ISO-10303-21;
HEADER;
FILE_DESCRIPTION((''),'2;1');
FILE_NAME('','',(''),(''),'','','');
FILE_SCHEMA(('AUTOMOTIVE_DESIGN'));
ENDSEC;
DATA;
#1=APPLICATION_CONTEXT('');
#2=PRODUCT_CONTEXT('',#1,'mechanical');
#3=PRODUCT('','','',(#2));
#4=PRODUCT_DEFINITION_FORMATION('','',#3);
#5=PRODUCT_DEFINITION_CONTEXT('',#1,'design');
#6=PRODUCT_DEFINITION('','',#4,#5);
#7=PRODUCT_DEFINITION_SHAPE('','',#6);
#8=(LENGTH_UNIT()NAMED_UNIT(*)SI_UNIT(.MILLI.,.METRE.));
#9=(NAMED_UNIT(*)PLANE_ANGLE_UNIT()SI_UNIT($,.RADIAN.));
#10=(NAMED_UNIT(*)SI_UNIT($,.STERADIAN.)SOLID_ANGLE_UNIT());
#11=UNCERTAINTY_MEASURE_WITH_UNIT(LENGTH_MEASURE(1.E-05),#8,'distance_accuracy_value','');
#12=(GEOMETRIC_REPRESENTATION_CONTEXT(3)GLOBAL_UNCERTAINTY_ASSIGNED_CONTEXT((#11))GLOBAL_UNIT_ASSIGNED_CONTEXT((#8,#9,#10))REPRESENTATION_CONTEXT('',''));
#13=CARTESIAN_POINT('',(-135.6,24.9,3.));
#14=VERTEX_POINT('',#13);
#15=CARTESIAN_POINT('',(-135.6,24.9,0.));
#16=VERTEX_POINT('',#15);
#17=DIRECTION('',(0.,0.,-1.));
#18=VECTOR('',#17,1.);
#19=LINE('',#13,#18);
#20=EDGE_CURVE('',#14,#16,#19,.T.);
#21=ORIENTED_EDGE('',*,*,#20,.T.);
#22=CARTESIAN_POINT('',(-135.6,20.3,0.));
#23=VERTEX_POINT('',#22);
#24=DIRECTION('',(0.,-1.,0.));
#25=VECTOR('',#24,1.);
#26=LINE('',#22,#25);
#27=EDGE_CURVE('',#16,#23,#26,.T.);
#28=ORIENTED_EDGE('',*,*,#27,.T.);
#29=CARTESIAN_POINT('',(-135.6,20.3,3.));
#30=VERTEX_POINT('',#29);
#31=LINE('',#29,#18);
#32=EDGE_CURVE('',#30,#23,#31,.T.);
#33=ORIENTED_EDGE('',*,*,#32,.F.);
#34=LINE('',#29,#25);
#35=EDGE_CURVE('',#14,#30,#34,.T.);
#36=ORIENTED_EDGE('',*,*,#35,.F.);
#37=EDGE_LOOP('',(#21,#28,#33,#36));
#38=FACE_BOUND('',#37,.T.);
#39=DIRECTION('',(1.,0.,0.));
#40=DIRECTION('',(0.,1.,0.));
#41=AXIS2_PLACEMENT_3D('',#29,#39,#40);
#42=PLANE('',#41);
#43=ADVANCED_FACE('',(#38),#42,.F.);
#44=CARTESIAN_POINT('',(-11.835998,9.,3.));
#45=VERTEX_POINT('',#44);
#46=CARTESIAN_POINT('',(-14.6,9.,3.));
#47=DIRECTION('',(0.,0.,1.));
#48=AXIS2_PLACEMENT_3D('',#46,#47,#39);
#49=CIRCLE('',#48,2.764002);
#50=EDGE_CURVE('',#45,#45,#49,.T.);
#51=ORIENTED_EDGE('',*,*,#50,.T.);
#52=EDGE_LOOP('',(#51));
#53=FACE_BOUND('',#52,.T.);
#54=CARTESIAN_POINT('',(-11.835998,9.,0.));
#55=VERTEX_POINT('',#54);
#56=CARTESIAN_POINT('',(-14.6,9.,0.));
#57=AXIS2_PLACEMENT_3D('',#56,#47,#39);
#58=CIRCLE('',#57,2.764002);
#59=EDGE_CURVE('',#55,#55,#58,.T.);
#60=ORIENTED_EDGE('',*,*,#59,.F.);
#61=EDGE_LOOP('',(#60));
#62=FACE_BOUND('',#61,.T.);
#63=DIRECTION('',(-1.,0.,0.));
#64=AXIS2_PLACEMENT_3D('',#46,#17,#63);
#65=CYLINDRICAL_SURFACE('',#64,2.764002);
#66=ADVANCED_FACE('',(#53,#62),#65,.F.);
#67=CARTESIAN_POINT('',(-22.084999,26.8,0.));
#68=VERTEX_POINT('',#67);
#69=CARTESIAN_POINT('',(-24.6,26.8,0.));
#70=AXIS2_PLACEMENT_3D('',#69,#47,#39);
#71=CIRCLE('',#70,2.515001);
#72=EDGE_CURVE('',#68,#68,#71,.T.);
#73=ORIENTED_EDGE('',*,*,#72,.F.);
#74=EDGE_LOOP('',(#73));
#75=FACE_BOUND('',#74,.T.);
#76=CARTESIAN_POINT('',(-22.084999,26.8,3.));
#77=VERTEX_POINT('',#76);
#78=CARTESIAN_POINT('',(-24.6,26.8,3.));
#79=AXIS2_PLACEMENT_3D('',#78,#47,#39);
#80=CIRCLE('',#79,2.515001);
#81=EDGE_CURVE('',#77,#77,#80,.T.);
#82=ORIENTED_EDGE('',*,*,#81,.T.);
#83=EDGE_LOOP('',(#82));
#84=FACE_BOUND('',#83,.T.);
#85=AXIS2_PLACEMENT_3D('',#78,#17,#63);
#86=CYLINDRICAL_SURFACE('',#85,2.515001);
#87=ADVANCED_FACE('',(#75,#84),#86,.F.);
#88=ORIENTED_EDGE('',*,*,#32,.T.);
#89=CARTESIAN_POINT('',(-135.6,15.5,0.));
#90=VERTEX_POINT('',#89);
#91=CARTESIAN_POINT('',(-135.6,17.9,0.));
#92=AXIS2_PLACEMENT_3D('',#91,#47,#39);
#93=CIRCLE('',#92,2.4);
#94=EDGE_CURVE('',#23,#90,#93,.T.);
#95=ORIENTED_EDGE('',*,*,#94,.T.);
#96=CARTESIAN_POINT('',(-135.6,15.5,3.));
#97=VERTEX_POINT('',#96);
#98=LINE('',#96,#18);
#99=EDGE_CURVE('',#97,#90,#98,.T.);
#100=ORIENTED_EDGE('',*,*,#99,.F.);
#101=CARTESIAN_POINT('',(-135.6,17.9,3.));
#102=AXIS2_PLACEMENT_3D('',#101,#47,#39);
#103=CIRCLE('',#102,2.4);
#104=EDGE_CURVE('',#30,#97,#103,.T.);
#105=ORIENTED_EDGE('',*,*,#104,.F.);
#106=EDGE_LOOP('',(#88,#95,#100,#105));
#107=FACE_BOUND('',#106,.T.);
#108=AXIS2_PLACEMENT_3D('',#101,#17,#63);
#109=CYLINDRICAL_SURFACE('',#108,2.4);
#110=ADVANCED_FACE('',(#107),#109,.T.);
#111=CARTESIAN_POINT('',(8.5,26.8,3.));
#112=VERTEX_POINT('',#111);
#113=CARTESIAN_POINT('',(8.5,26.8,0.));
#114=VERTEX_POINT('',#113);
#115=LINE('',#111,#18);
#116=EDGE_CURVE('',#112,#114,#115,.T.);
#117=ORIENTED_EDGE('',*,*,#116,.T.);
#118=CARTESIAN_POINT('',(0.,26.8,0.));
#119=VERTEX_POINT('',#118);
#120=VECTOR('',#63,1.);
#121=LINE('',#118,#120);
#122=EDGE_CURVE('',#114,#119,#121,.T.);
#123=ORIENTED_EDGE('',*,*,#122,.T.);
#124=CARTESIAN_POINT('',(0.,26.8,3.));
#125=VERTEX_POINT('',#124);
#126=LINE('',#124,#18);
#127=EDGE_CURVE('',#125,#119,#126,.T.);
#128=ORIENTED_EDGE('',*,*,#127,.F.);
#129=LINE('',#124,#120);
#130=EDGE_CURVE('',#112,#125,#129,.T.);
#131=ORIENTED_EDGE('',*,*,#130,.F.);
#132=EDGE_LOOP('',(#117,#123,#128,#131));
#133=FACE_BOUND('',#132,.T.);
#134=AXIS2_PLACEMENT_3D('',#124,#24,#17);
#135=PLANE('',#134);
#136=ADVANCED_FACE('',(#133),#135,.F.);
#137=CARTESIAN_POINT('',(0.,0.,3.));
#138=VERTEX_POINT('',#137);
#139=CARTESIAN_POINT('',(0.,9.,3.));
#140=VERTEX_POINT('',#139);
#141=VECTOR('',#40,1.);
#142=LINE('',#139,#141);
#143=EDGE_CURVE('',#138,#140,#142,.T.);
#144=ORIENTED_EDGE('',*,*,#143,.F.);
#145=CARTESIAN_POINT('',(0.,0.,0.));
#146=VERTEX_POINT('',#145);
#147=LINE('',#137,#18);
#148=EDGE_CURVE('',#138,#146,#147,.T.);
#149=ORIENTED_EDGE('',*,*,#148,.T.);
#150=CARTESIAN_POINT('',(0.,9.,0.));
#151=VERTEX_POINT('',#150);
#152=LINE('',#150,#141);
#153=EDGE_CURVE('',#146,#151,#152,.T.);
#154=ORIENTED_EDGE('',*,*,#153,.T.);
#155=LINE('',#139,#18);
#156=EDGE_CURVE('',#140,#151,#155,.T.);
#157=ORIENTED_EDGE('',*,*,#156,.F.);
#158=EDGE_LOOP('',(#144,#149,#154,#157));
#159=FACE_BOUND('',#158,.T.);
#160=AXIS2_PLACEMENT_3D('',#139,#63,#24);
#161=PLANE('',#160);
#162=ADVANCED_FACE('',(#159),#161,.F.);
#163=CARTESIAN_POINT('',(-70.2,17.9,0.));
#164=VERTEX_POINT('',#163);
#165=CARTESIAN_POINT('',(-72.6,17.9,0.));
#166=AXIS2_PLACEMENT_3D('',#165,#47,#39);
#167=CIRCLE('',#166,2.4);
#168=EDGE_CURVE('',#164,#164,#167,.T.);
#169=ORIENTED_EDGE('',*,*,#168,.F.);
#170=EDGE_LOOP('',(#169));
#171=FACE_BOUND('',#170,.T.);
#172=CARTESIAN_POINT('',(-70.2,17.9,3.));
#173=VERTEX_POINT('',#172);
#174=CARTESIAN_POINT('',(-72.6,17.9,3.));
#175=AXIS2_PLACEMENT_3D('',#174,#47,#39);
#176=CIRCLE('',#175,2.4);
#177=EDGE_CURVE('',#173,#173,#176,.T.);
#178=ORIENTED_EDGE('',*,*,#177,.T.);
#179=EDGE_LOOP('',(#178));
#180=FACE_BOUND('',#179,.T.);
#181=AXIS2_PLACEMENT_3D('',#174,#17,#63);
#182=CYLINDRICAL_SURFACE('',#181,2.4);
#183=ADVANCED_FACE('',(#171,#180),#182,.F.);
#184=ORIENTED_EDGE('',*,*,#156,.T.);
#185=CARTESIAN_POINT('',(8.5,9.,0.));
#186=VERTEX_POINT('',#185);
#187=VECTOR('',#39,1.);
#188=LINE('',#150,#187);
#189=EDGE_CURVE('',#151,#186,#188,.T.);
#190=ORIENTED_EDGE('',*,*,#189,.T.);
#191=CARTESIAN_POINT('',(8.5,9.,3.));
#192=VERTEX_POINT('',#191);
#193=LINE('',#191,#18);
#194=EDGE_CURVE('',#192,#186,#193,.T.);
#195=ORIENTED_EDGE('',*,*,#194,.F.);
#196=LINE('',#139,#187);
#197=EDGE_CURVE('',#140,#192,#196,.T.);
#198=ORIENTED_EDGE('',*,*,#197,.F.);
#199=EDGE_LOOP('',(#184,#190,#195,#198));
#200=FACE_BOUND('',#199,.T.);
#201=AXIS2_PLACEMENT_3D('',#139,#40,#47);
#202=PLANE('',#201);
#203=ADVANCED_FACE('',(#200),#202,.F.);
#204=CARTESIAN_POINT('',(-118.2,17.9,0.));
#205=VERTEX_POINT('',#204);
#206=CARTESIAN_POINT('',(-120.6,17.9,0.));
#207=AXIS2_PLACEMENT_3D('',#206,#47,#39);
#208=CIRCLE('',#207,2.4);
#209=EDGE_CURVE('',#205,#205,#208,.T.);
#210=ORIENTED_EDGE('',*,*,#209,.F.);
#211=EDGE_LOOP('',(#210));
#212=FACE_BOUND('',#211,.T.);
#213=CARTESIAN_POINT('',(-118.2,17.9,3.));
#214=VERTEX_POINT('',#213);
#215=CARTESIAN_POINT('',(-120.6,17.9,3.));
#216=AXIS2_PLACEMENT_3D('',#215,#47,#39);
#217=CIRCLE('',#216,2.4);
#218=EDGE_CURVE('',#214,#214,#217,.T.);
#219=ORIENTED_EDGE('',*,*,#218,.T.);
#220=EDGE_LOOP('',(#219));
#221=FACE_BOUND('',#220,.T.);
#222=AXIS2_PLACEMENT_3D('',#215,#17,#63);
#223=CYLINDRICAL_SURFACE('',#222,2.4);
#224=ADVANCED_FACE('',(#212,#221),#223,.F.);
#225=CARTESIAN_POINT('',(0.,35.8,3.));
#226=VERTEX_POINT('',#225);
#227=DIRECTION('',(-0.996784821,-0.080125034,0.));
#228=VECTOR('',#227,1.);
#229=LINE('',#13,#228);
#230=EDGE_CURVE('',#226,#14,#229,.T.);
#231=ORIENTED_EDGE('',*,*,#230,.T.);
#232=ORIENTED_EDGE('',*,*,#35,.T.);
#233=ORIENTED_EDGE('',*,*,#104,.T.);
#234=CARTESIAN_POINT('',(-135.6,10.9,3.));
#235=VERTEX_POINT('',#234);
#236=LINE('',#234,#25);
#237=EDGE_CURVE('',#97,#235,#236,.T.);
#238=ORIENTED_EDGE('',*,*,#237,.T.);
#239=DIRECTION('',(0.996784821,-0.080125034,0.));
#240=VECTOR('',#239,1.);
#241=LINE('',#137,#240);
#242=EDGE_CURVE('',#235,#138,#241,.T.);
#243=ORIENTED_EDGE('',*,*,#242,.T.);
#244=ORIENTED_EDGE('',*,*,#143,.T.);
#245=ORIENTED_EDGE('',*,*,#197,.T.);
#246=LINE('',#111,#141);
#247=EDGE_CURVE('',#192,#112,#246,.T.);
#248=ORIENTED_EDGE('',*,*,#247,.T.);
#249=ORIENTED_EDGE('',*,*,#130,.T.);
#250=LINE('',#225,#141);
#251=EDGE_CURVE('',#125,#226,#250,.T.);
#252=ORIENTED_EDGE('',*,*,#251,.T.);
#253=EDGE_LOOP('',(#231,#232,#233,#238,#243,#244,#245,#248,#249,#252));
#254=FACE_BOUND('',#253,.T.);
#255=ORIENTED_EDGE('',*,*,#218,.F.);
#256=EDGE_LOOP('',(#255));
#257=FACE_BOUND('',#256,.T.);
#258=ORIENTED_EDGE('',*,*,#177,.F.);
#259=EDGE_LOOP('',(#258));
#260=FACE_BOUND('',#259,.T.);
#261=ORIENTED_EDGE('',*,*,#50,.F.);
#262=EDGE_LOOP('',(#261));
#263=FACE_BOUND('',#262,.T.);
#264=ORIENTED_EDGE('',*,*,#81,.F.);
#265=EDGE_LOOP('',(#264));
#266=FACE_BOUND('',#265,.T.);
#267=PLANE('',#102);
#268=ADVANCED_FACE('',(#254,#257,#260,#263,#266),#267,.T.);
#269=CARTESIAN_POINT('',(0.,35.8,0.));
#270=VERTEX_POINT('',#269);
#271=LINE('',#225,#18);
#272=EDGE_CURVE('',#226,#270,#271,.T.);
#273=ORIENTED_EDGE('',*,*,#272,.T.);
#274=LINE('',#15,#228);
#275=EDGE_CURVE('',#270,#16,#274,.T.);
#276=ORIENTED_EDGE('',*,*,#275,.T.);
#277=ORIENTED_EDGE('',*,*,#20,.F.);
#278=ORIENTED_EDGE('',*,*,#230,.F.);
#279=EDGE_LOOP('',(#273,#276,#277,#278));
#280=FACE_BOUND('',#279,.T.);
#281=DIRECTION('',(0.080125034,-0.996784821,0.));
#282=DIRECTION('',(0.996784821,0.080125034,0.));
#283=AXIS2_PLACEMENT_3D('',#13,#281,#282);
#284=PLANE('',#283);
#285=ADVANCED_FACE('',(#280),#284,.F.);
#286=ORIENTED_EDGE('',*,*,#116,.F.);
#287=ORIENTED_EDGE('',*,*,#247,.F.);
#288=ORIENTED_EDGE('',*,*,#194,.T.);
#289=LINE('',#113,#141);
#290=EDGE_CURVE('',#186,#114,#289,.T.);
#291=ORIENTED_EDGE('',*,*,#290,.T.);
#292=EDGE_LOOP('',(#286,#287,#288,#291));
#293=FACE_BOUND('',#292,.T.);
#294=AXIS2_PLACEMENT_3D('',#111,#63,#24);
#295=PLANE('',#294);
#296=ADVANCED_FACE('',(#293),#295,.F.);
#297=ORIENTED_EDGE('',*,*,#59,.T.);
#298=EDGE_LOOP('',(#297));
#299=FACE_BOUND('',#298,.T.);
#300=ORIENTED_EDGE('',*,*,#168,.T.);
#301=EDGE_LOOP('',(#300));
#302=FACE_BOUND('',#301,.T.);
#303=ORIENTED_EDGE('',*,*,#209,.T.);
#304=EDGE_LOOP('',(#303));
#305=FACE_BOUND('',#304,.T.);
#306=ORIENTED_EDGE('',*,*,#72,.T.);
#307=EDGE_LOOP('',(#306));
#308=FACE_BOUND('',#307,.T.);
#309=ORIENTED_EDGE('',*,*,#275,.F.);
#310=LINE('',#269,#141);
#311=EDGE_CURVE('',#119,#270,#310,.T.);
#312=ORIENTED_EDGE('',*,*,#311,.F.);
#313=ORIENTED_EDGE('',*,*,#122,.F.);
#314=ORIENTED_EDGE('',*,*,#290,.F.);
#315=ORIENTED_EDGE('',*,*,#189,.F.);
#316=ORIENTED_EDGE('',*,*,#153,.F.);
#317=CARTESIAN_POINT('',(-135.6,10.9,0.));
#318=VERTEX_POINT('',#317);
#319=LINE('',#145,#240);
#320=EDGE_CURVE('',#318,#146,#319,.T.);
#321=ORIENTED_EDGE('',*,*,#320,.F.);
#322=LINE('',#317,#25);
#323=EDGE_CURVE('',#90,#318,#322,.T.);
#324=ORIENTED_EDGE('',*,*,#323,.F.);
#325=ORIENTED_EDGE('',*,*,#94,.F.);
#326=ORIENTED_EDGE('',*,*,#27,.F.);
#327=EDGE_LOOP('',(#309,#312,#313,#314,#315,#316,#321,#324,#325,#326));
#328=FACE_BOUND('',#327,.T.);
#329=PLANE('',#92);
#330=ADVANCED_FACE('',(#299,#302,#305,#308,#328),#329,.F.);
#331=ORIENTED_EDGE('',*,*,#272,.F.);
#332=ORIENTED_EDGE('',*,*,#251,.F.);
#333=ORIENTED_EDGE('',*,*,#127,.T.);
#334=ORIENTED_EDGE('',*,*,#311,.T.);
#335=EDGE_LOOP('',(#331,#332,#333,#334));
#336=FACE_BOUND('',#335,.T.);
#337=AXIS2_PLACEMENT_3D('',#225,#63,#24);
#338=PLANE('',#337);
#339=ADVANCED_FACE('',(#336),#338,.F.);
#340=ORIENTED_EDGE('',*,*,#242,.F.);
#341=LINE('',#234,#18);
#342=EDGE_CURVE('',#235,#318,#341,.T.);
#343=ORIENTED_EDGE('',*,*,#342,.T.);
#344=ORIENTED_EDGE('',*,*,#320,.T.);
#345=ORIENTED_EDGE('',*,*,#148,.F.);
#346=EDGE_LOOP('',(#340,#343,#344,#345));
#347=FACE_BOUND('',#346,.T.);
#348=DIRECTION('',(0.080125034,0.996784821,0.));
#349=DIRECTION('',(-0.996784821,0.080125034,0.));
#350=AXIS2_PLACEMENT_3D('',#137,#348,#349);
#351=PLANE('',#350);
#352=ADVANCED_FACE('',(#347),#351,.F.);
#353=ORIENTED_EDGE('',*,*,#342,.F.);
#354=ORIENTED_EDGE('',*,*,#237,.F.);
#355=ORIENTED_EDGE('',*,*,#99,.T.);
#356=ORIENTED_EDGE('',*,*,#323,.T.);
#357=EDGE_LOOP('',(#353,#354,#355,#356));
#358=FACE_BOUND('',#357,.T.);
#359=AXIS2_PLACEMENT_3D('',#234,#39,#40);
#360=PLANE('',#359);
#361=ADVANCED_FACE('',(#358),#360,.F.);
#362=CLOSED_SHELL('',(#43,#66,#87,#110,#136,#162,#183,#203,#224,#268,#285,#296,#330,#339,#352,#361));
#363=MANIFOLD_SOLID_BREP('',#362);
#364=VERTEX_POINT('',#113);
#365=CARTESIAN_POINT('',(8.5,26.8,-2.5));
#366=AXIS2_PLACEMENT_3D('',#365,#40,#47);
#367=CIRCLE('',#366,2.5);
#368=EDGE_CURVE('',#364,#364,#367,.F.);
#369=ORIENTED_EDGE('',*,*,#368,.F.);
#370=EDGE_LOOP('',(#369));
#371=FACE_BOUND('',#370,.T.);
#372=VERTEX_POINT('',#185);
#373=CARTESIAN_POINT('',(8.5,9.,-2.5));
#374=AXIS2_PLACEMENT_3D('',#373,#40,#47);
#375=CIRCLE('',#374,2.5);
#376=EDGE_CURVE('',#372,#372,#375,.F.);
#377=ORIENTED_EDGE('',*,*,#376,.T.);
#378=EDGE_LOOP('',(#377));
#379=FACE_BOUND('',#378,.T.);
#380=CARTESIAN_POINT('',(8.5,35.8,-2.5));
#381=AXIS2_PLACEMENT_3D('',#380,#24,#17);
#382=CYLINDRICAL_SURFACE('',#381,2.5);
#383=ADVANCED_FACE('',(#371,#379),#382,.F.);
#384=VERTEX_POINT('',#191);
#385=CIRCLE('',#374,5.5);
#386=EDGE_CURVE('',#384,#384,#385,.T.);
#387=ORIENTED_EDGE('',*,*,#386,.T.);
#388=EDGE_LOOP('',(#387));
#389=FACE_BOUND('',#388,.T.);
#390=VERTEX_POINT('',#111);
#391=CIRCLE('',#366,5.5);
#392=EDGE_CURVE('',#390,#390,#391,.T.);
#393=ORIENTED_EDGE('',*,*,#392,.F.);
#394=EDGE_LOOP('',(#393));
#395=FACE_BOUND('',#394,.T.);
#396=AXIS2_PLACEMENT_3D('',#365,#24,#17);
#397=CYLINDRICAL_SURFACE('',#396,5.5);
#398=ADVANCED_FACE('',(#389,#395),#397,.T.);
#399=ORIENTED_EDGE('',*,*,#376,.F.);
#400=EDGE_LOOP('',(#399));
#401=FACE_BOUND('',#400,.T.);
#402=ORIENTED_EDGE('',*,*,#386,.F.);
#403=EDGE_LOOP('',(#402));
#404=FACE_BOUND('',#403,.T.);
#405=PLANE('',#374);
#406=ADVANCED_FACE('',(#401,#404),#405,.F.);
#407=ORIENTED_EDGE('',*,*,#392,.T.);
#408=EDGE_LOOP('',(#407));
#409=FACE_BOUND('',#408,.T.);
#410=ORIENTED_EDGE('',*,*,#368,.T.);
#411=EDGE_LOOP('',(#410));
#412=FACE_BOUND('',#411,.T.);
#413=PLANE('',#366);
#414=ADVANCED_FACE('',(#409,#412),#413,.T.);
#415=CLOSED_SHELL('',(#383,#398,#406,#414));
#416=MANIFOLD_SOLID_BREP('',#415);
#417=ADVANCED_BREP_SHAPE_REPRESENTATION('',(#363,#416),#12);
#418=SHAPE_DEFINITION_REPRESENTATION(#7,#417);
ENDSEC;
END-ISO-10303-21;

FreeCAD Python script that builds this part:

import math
import FreeCAD as App
import Part
import Sketcher

V = App.Vector
Q = App.Units.Quantity

doc = App.newDocument("Part")
params = doc.addObject("Spreadsheet::Sheet", "Params")
for row, (alias, value) in enumerate([
    ("sketch1_diameter", "4.8 mm"),
    ("sketch1_diameter2", "5.030002 mm"),
    ("sketch1_height", "9 mm"),
    ("sketch1_width", "8.5 mm"),
    ("sketch1_height2", "17.8 mm"),
    ("pad1_length", "3 mm"),
    ("sketch2_diameter", "11 mm"),
    ("pad2_length", "17.8 mm"),
    ("sketch3_diameter", "5 mm"),
], start=1):
    params.set(f"A{row}", alias)
    params.set(f"B{row}", "=" + value)
    params.setAlias(f"B{row}", alias)

body = doc.addObject("PartDesign::Body", "Body")

sketch1 = body.newObject("Sketcher::SketchObject", "Sketch")
sketch1.AttachmentSupport = (doc.getObject("XY_Plane"), [""])
sketch1.MapMode = "FlatFace"
sketch1.addGeometry([
    Part.LineSegment(V(-135.6, 10.9, 0), V(0, 0, 0)),
    Part.LineSegment(V(0, 0, 0), V(0, 9, 0)),
    Part.LineSegment(V(0, 9, 0), V(8.5, 9, 0)),
    Part.LineSegment(V(8.5, 9, 0), V(8.5, 26.8, 0)),
    Part.LineSegment(V(8.5, 26.8, 0), V(0, 26.8, 0)),
    Part.LineSegment(V(0, 26.8, 0), V(0, 35.8, 0)),
    Part.LineSegment(V(0, 35.8, 0), V(-135.6, 24.9, 0)),
    Part.LineSegment(V(-135.6, 24.9, 0), V(-135.6, 20.3, 0)),
    Part.ArcOfCircle(Part.Circle(V(-135.6, 17.9, 0), V(0, 0, 1), 2.4), math.radians(90), math.radians(270)),
    Part.LineSegment(V(-135.6, 15.5, 0), V(-135.6, 10.9, 0)),
    Part.Circle(V(-14.6, 9, 0), V(0, 0, 1), 2.8),
    Part.Circle(V(-24.6, 26.8, 0), V(0, 0, 1), 2.5),
    Part.Circle(V(-72.6, 17.9, 0), V(0, 0, 1), 2.4),
    Part.Circle(V(-120.6, 17.9, 0), V(0, 0, 1), 2.4),
], False)
sketch1.addConstraint([
    Sketcher.Constraint("Coincident", 0, 2, 1, 1),
    Sketcher.Constraint("Coincident", 1, 2, 2, 1),
    Sketcher.Constraint("Coincident", 2, 2, 3, 1),
    Sketcher.Constraint("Coincident", 3, 2, 4, 1),
    Sketcher.Constraint("Coincident", 4, 2, 5, 1),
    Sketcher.Constraint("Coincident", 5, 2, 6, 1),
    Sketcher.Constraint("Coincident", 6, 2, 7, 1),
    Sketcher.Constraint("Coincident", 7, 2, 8, 1),
    Sketcher.Constraint("Coincident", 8, 2, 9, 1),
    Sketcher.Constraint("Coincident", 9, 2, 0, 1),
    Sketcher.Constraint("Vertical", 1),
    Sketcher.Constraint("Horizontal", 2),
    Sketcher.Constraint("Vertical", 3),
    Sketcher.Constraint("Horizontal", 4),
    Sketcher.Constraint("Vertical", 5),
    Sketcher.Constraint("Vertical", 7),
    Sketcher.Constraint("Vertical", 9),
    Sketcher.Constraint("Coincident", 0, 2, -1, 1),
    Sketcher.Constraint("Equal", 8, 12),
    Sketcher.Constraint("Equal", 12, 13),
    Sketcher.Constraint("PointOnObject", 4, 2, -2),
    Sketcher.Constraint("Horizontal", 8, 3, 12, 3),
    Sketcher.Constraint("Horizontal", 12, 3, 13, 3),
    Sketcher.Constraint("Horizontal", 10, 3, 1, 2),
    Sketcher.Constraint("Horizontal", 11, 3, 3, 2),
    Sketcher.Constraint("Vertical", 8, 3, 6, 2),
    Sketcher.Constraint("Vertical", 7, 2, 8, 2),
    Sketcher.Constraint("Equal", 1, 5),
    Sketcher.Constraint("Equal", 7, 9),
    Sketcher.Constraint("Equal", 0, 6),
    Sketcher.Constraint("Diameter", 12, Q("4.8 mm")),
    Sketcher.Constraint("Diameter", 11, Q("5.030002 mm")),
    Sketcher.Constraint("DistanceY", 1, 1, 1, 2, Q("9 mm")),
    Sketcher.Constraint("DistanceX", 2, 1, 2, 2, Q("8.5 mm")),
    Sketcher.Constraint("DistanceY", 3, 1, 3, 2, Q("17.8 mm")),
    Sketcher.Constraint("DistanceY", 7, 2, 7, 1, Q("4.6 mm")),
    Sketcher.Constraint("DistanceX", 8, 3, 10, 3, Q("121 mm")),
    Sketcher.Constraint("DistanceX", 11, 3, 10, 3, Q("10 mm")),
    Sketcher.Constraint("DistanceX", 12, 3, 11, 3, Q("48 mm")),
    Sketcher.Constraint("DistanceX", 8, 3, 13, 3, Q("15 mm")),
    Sketcher.Constraint("DistanceX", 8, 3, -1, 1, Q("135.6 mm")),
    Sketcher.Constraint("Diameter", 10, Q("5.528005 mm")),
])
sketch1.setExpression("Constraints[30]", "Params.sketch1_diameter")
sketch1.setExpression("Constraints[31]", "Params.sketch1_diameter2")
sketch1.setExpression("Constraints[32]", "Params.sketch1_height")
sketch1.setExpression("Constraints[33]", "Params.sketch1_width")
sketch1.setExpression("Constraints[34]", "Params.sketch1_height2")
pad1 = body.newObject("PartDesign::Pad", "Pad")
pad1.Profile = sketch1
pad1.setExpression("Length", "Params.pad1_length")
body2 = doc.addObject("PartDesign::Body", "Body001")

sketch2 = body2.newObject("Sketcher::SketchObject", "Sketch001")
sketch2.AttachmentSupport = (doc.getObject("XZ_Plane001"), [""])
sketch2.MapMode = "FlatFace"
sketch2.AttachmentOffset = App.Placement(V(0, 0, -9), App.Rotation())
sketch2.addGeometry(Part.Circle(V(8, -2, 0), V(0, 0, 1), 6), False)
sketch2.addConstraint([
    Sketcher.Constraint("Diameter", 0, Q("11 mm")),
    Sketcher.Constraint("DistanceX", -1, 1, 0, 3, Q("8.5 mm")),
    Sketcher.Constraint("DistanceY", 0, 3, -1, 1, Q("2.5 mm")),
])
sketch2.setExpression("Constraints[0]", "Params.sketch2_diameter")
pad2 = body2.newObject("PartDesign::Pad", "Pad001")
pad2.Profile = sketch2
pad2.setExpression("Length", "Params.pad2_length")
pad2.Reversed = True

sketch3 = body2.newObject("Sketcher::SketchObject", "Sketch002")
sketch3.AttachmentSupport = (doc.getObject("XZ_Plane001"), [""])
sketch3.MapMode = "FlatFace"
sketch3.addGeometry(Part.Circle(V(8.5, -2.5, 0), V(0, 0, 1), 2.5), False)
sketch3.addConstraint([
    Sketcher.Constraint("Diameter", 0, Q("5 mm")),
    Sketcher.Constraint("DistanceX", -1, 1, 0, 3, Q("8.5 mm")),
    Sketcher.Constraint("DistanceY", 0, 3, -1, 1, Q("2.5 mm")),
])
sketch3.setExpression("Constraints[0]", "Params.sketch3_diameter")
pocket1 = body2.newObject("PartDesign::Pocket", "Pocket")
pocket1.Profile = sketch3
pocket1.Type = "ThroughAll"

doc.recompute()
